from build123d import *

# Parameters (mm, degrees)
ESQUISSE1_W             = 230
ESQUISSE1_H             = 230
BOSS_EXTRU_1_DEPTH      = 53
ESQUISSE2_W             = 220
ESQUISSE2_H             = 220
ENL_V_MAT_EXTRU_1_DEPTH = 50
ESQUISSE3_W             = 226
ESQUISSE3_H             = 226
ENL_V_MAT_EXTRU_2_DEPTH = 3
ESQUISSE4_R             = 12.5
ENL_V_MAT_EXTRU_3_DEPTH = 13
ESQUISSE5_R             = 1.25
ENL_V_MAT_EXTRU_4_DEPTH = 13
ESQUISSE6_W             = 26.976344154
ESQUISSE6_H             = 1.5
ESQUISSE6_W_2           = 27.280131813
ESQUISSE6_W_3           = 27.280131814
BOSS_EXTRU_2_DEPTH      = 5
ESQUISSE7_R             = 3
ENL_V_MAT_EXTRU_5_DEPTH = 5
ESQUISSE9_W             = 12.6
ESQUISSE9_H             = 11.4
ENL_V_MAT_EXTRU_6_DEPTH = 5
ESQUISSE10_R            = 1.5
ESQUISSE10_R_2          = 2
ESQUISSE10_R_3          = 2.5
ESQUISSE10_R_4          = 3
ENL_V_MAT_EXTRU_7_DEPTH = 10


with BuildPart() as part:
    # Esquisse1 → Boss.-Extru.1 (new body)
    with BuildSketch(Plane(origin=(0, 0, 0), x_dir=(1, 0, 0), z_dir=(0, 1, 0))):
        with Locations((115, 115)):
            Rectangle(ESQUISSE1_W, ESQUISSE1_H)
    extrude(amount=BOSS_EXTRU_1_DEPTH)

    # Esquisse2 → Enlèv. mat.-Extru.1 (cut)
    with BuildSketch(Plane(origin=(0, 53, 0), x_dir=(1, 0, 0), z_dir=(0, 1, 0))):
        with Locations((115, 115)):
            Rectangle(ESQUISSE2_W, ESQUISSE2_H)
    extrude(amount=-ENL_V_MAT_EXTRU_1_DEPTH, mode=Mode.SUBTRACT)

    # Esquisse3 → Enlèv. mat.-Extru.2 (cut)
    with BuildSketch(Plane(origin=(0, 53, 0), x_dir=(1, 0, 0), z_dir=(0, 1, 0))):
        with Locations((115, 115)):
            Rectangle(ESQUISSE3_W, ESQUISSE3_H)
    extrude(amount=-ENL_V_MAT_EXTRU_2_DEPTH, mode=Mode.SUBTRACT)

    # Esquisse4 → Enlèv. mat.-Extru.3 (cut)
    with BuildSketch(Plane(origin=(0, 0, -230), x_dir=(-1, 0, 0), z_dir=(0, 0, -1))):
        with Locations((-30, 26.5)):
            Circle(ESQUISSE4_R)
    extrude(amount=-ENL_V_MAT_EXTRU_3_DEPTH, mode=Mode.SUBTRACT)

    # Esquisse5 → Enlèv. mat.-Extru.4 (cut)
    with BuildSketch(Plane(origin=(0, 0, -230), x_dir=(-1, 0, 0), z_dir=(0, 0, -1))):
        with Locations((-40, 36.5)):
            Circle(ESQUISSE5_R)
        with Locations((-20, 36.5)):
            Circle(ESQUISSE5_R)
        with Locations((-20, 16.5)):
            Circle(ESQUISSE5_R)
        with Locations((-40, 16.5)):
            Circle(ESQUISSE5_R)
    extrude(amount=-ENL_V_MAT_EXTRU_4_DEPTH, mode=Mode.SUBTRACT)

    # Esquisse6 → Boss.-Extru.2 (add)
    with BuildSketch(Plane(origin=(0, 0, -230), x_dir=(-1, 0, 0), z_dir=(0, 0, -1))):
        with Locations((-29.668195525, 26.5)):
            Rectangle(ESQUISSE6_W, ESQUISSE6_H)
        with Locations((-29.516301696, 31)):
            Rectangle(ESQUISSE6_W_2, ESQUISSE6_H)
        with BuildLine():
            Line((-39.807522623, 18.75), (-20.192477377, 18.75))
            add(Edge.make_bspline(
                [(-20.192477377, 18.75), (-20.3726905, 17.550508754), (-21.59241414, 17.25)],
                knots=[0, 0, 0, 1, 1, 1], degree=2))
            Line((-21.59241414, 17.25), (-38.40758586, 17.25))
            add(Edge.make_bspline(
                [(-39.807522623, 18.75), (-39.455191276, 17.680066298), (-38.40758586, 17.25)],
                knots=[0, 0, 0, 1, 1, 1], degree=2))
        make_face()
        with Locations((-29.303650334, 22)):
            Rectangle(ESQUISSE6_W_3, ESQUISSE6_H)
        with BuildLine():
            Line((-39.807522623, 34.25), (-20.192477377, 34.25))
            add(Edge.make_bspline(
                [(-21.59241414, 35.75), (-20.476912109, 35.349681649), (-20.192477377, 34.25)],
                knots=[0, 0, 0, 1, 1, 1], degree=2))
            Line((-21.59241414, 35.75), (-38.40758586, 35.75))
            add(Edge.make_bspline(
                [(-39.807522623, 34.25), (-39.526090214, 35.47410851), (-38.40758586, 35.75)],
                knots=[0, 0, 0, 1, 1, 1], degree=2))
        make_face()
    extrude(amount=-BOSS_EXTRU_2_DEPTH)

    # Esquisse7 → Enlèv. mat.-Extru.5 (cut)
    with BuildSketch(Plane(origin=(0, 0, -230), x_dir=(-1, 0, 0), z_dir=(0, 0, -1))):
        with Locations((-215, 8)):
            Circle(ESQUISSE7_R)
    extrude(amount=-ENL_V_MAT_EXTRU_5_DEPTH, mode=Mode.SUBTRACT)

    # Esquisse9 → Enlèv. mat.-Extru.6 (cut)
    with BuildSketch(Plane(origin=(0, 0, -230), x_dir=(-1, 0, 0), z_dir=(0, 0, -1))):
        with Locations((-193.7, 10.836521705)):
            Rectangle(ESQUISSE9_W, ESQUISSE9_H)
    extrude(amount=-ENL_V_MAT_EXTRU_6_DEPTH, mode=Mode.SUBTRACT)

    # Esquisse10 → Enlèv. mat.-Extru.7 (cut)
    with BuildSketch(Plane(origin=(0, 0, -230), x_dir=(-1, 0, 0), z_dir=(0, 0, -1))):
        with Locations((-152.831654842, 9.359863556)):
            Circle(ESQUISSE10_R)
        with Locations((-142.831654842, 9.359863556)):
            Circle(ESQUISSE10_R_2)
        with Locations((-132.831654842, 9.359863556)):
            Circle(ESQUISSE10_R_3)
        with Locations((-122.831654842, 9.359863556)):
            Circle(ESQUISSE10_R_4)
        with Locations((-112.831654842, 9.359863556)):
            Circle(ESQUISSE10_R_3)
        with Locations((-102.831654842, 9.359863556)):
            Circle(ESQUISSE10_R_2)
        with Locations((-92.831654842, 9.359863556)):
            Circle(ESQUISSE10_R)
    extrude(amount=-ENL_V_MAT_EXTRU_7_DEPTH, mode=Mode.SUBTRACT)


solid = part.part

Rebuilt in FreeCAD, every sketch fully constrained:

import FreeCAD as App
import Part
import Sketcher
from FreeCAD import Vector

doc = App.newDocument("Part")
body = doc.addObject("PartDesign::Body", "Body")

# Sketch on XZ plane
sketch1 = body.newObject("Sketcher::SketchObject", "Sketch")
sketch1.AttachmentSupport = (doc.getObject("XZ_Plane"), [""])
sketch1.MapMode = "FlatFace"
sketch1.addGeometry(Part.LineSegment(Vector(0, -230, 0), Vector(0, 0, 0)), False)
sketch1.addGeometry(Part.LineSegment(Vector(0, 0, 0), Vector(230, 0, 0)), False)
sketch1.addGeometry(Part.LineSegment(Vector(230, 0, 0), Vector(230, -230, 0)), False)
sketch1.addGeometry(Part.LineSegment(Vector(230, -230, 0), Vector(0, -230, 0)), False)
sketch1.addConstraint(Sketcher.Constraint("Coincident", 0, 2, 1, 1))
sketch1.addConstraint(Sketcher.Constraint("Coincident", 1, 2, 2, 1))
sketch1.addConstraint(Sketcher.Constraint("Coincident", 2, 2, 3, 1))
sketch1.addConstraint(Sketcher.Constraint("Coincident", 3, 2, 0, 1))
sketch1.addConstraint(Sketcher.Constraint("Vertical", 0))
sketch1.addConstraint(Sketcher.Constraint("Horizontal", 1))
sketch1.addConstraint(Sketcher.Constraint("Vertical", 2))
sketch1.addConstraint(Sketcher.Constraint("Horizontal", 3))
sketch1.addConstraint(Sketcher.Constraint("Coincident", 0, 2, -1, 1))
sketch1.addConstraint(Sketcher.Constraint("Equal", 3, 0))
sketch1.addConstraint(Sketcher.Constraint("DistanceX", 1, 1, 1, 2, 230.0))
pad1 = body.newObject("PartDesign::Pad", "Pad")
pad1.Profile = sketch1
pad1.Length = 53
pad1.Reversed = True

# Sketch on XZ plane
sketch2 = body.newObject("Sketcher::SketchObject", "Sketch001")
sketch2.AttachmentSupport = (doc.getObject("XZ_Plane"), [""])
sketch2.MapMode = "FlatFace"
sketch2.AttachmentOffset = App.Placement(Vector(0, 0, -53), App.Rotation())
sketch2.addGeometry(Part.LineSegment(Vector(5, -225, 0), Vector(5, -5, 0)), False)
sketch2.addGeometry(Part.LineSegment(Vector(5, -5, 0), Vector(225, -5, 0)), False)
sketch2.addGeometry(Part.LineSegment(Vector(225, -5, 0), Vector(225, -225, 0)), False)
sketch2.addGeometry(Part.LineSegment(Vector(225, -225, 0), Vector(5, -225, 0)), False)
sketch2.addConstraint(Sketcher.Constraint("Coincident", 0, 2, 1, 1))
sketch2.addConstraint(Sketcher.Constraint("Coincident", 1, 2, 2, 1))
sketch2.addConstraint(Sketcher.Constraint("Coincident", 2, 2, 3, 1))
sketch2.addConstraint(Sketcher.Constraint("Coincident", 3, 2, 0, 1))
sketch2.addConstraint(Sketcher.Constraint("Vertical", 0))
sketch2.addConstraint(Sketcher.Constraint("Horizontal", 1))
sketch2.addConstraint(Sketcher.Constraint("Vertical", 2))
sketch2.addConstraint(Sketcher.Constraint("Horizontal", 3))
sketch2.addConstraint(Sketcher.Constraint("Equal", 3, 0))
sketch2.addConstraint(Sketcher.Constraint("DistanceX", 1, 1, 1, 2, 220.0))
sketch2.addConstraint(Sketcher.Constraint("DistanceX", -1, 1, 0, 2, 5.0))
sketch2.addConstraint(Sketcher.Constraint("DistanceY", 0, 2, -1, 1, 5.0))
pocket1 = body.newObject("PartDesign::Pocket", "Pocket")
pocket1.Profile = sketch2
pocket1.Length = 50
pocket1.Reversed = True

# Sketch on XZ plane
sketch3 = body.newObject("Sketcher::SketchObject", "Sketch002")
sketch3.AttachmentSupport = (doc.getObject("XZ_Plane"), [""])
sketch3.MapMode = "FlatFace"
sketch3.AttachmentOffset = App.Placement(Vector(0, 0, -53), App.Rotation())
sketch3.addGeometry(Part.LineSegment(Vector(2, -228, 0), Vector(2, -2, 0)), False)
sketch3.addGeometry(Part.LineSegment(Vector(2, -2, 0), Vector(228, -2, 0)), False)
sketch3.addGeometry(Part.LineSegment(Vector(228, -2, 0), Vector(228, -228, 0)), False)
sketch3.addGeometry(Part.LineSegment(Vector(228, -228, 0), Vector(2, -228, 0)), False)
sketch3.addConstraint(Sketcher.Constraint("Coincident", 0, 2, 1, 1))
sketch3.addConstraint(Sketcher.Constraint("Coincident", 1, 2, 2, 1))
sketch3.addConstraint(Sketcher.Constraint("Coincident", 2, 2, 3, 1))
sketch3.addConstraint(Sketcher.Constraint("Coincident", 3, 2, 0, 1))
sketch3.addConstraint(Sketcher.Constraint("Vertical", 0))
sketch3.addConstraint(Sketcher.Constraint("Horizontal", 1))
sketch3.addConstraint(Sketcher.Constraint("Vertical", 2))
sketch3.addConstraint(Sketcher.Constraint("Horizontal", 3))
sketch3.addConstraint(Sketcher.Constraint("Equal", 3, 0))
sketch3.addConstraint(Sketcher.Constraint("DistanceX", 1, 1, 1, 2, 226.0))
sketch3.addConstraint(Sketcher.Constraint("DistanceX", -1, 1, 0, 2, 2.0))
sketch3.addConstraint(Sketcher.Constraint("DistanceY", 0, 2, -1, 1, 2.0))
pocket2 = body.newObject("PartDesign::Pocket", "Pocket001")
pocket2.Profile = sketch3
pocket2.Length = 3
pocket2.Reversed = True

# Sketch on XY plane
sketch4 = body.newObject("Sketcher::SketchObject", "Sketch003")
sketch4.AttachmentSupport = (doc.getObject("XY_Plane"), [""])
sketch4.MapMode = "FlatFace"
sketch4.AttachmentOffset = App.Placement(Vector(0, 0, -230), App.Rotation())
sketch4.addGeometry(Part.Circle(Vector(30, 26, 0), Vector(0, 0, 1), 12), False)
sketch4.addConstraint(Sketcher.Constraint("Diameter", 0, 25.0))
sketch4.addConstraint(Sketcher.Constraint("DistanceX", -1, 1, 0, 3, 30.0))
sketch4.addConstraint(Sketcher.Constraint("DistanceY", -1, 1, 0, 3, 26.5))
pocket3 = body.newObject("PartDesign::Pocket", "Pocket002")
pocket3.Profile = sketch4
pocket3.Length = 13
pocket3.Reversed = True

# Sketch on XY plane
sketch5 = body.newObject("Sketcher::SketchObject", "Sketch004")
sketch5.AttachmentSupport = (doc.getObject("XY_Plane"), [""])
sketch5.MapMode = "FlatFace"
sketch5.AttachmentOffset = App.Placement(Vector(0, 0, -230), App.Rotation())
sketch5.addGeometry(Part.Circle(Vector(40, 36.5, 0), Vector(0, 0, 1), 1.2), False)
sketch5.addGeometry(Part.Circle(Vector(20, 36.5, 0), Vector(0, 0, 1), 1.2), False)
sketch5.addGeometry(Part.Circle(Vector(20, 16.5, 0), Vector(0, 0, 1), 1.2), False)
sketch5.addGeometry(Part.Circle(Vector(40, 16.5, 0), Vector(0, 0, 1), 1.2), False)
sketch5.addConstraint(Sketcher.Constraint("Equal", 0, 1))
sketch5.addConstraint(Sketcher.Constraint("Equal", 1, 2))
sketch5.addConstraint(Sketcher.Constraint("Equal", 2, 3))
sketch5.addConstraint(Sketcher.Constraint("Horizontal", 0, 3, 1, 3))
sketch5.addConstraint(Sketcher.Constraint("Horizontal", 2, 3, 3, 3))
sketch5.addConstraint(Sketcher.Constraint("Vertical", 1, 3, 2, 3))
sketch5.addConstraint(Sketcher.Constraint("Vertical", 0, 3, 3, 3))
sketch5.addConstraint(Sketcher.Constraint("Diameter", 0, 2.5))
sketch5.addConstraint(Sketcher.Constraint("DistanceX", -1, 1, 0, 3, 40.0))
sketch5.addConstraint(Sketcher.Constraint("DistanceX", -1, 1, 1, 3, 20.0))
sketch5.addConstraint(Sketcher.Constraint("DistanceY", 2, 3, 1, 3, 20.0))
sketch5.addConstraint(Sketcher.Constraint("DistanceY", -1, 1, 0, 3, 36.5))
pocket4 = body.newObject("PartDesign::Pocket", "Pocket003")
pocket4.Profile = sketch5
pocket4.Length = 13
pocket4.Reversed = True

# Sketch on XY plane
sketch6 = body.newObject("Sketcher::SketchObject", "Sketch005")
sketch6.AttachmentSupport = (doc.getObject("XY_Plane"), [""])
sketch6.MapMode = "FlatFace"
sketch6.AttachmentOffset = App.Placement(Vector(0, 0, -230), App.Rotation())
sketch6.addGeometry(Part.LineSegment(Vector(43.156368, 27.25, 0), Vector(43.156368, 25.75, 0)), False)
sketch6.addGeometry(Part.LineSegment(Vector(43.156368, 25.75, 0), Vector(16.180023, 25.75, 0)), False)
sketch6.addGeometry(Part.LineSegment(Vector(16.180023, 25.75, 0), Vector(16.180023, 27.25, 0)), False)
sketch6.addGeometry(Part.LineSegment(Vector(16.180023, 27.25, 0), Vector(43.156368, 27.25, 0)), False)
sketch6.addGeometry(Part.LineSegment(Vector(43.156368, 31.75, 0), Vector(43.156368, 30.25, 0)), False)
sketch6.addGeometry(Part.LineSegment(Vector(43.156368, 30.25, 0), Vector(15.876236, 30.25, 0)), False)
sketch6.addGeometry(Part.LineSegment(Vector(15.876236, 30.25, 0), Vector(15.876236, 31.75, 0)), False)
sketch6.addGeometry(Part.LineSegment(Vector(15.876236, 31.75, 0), Vector(43.156368, 31.75, 0)), False)
sketch6.addGeometry(Part.LineSegment(Vector(20.192477, 18.75, 0), Vector(39.807523, 18.75, 0)), False)
sketch6.addGeometry(Part.BSplineCurve([Vector(39.807523, 18.75, 0), Vector(39.455191, 17.680066, 0), Vector(38.407586, 17.25, 0)], [3, 3], [0, 1], False, 2, [1, 1, 1], False), False)
sketch6.addGeometry(Part.LineSegment(Vector(38.407586, 17.25, 0), Vector(21.592414, 17.25, 0)), False)
sketch6.addGeometry(Part.BSplineCurve([Vector(20.192477, 18.75, 0), Vector(20.372691, 17.550509, 0), Vector(21.592414, 17.25, 0)], [3, 3], [0, 1], False, 2, [1, 1, 1], False), False)
sketch6.addGeometry(Part.LineSegment(Vector(42.943716, 22.75, 0), Vector(42.943716, 21.25, 0)), False)
sketch6.addGeometry(Part.LineSegment(Vector(42.943716, 21.25, 0), Vector(15.663584, 21.25, 0)), False)
sketch6.addGeometry(Part.LineSegment(Vector(15.663584, 21.25, 0), Vector(15.663584, 22.75, 0)), False)
sketch6.addGeometry(Part.LineSegment(Vector(15.663584, 22.75, 0), Vector(42.943716, 22.75, 0)), False)
sketch6.addGeometry(Part.LineSegment(Vector(39.807523, 34.25, 0), Vector(20.192477, 34.25, 0)), False)
sketch6.addGeometry(Part.BSplineCurve([Vector(21.592414, 35.75, 0), Vector(20.476912, 35.349682, 0), Vector(20.192477, 34.25, 0)], [3, 3], [0, 1], False, 2, [1, 1, 1], False), False)
sketch6.addGeometry(Part.LineSegment(Vector(21.592414, 35.75, 0), Vector(38.407586, 35.75, 0)), False)
sketch6.addGeometry(Part.BSplineCurve([Vector(39.807523, 34.25, 0), Vector(39.52609, 35.474109, 0), Vector(38.407586, 35.75, 0)], [3, 3], [0, 1], False, 2, [1, 1, 1], False), False)
sketch6.addConstraint(Sketcher.Constraint("Block", 9))
sketch6.addConstraint(Sketcher.Constraint("Block", 11))
sketch6.addConstraint(Sketcher.Constraint("Block", 17))
sketch6.addConstraint(Sketcher.Constraint("Block", 19))
sketch6.addConstraint(Sketcher.Constraint("Coincident", 0, 2, 1, 1))
sketch6.addConstraint(Sketcher.Constraint("Coincident", 1, 2, 2, 1))
sketch6.addConstraint(Sketcher.Constraint("Coincident", 2, 2, 3, 1))
sketch6.addConstraint(Sketcher.Constraint("Coincident", 3, 2, 0, 1))
sketch6.addConstraint(Sketcher.Constraint("Coincident", 4, 2, 5, 1))
sketch6.addConstraint(Sketcher.Constraint("Coincident", 5, 2, 6, 1))
sketch6.addConstraint(Sketcher.Constraint("Coincident", 6, 2, 7, 1))
sketch6.addConstraint(Sketcher.Constraint("Coincident", 7, 2, 4, 1))
sketch6.addConstraint(Sketcher.Constraint("Coincident", 8, 2, 9, 1))
sketch6.addConstraint(Sketcher.Constraint("Coincident", 9, 2, 10, 1))
sketch6.addConstraint(Sketcher.Constraint("Coincident", 10, 2, 11, 2))
sketch6.addConstraint(Sketcher.Constraint("Coincident", 11, 1, 8, 1))
sketch6.addConstraint(Sketcher.Constraint("Coincident", 12, 2, 13, 1))
sketch6.addConstraint(Sketcher.Constraint("Coincident", 13, 2, 14, 1))
sketch6.addConstraint(Sketcher.Constraint("Coincident", 14, 2, 15, 1))
sketch6.addConstraint(Sketcher.Constraint("Coincident", 15, 2, 12, 1))
sketch6.addConstraint(Sketcher.Constraint("Coincident", 16, 2, 17, 2))
sketch6.addConstraint(Sketcher.Constraint("Coincident", 17, 1, 18, 1))
sketch6.addConstraint(Sketcher.Constraint("Coincident", 18, 2, 19, 2))
sketch6.addConstraint(Sketcher.Constraint("Coincident", 19, 1, 16, 1))
sketch6.addConstraint(Sketcher.Constraint("Vertical", 0))
sketch6.addConstraint(Sketcher.Constraint("Horizontal", 1))
sketch6.addConstraint(Sketcher.Constraint("Vertical", 2))
sketch6.addConstraint(Sketcher.Constraint("Horizontal", 3))
sketch6.addConstraint(Sketcher.Constraint("Vertical", 4))
sketch6.addConstraint(Sketcher.Constraint("Horizontal", 5))
sketch6.addConstraint(Sketcher.Constraint("Vertical", 6))
sketch6.addConstraint(Sketcher.Constraint("Horizontal", 7))
sketch6.addConstraint(Sketcher.Constraint("Vertical", 12))
sketch6.addConstraint(Sketcher.Constraint("Horizontal", 13))
sketch6.addConstraint(Sketcher.Constraint("Vertical", 14))
sketch6.addConstraint(Sketcher.Constraint("Horizontal", 15))
sketch6.addConstraint(Sketcher.Constraint("Vertical", 3, 2, 4, 2))
sketch6.addConstraint(Sketcher.Constraint("Equal", 7, 13))
sketch6.addConstraint(Sketcher.Constraint("Equal", 2, 4))
sketch6.addConstraint(Sketcher.Constraint("Equal", 6, 12))
sketch6.addConstraint(Sketcher.Constraint("DistanceY", 0, 2, 0, 1, 1.5))
sketch6.addConstraint(Sketcher.Constraint("DistanceY", 3, 2, 4, 2, 3.0))
sketch6.addConstraint(Sketcher.Constraint("DistanceY", 8, 2, 0, 2, 7.0))
sketch6.addConstraint(Sketcher.Constraint("DistanceY", 12, 2, 3, 2, 6.0))
sketch6.addConstraint(Sketcher.Constraint("DistanceX", 5, 2, 5, 1, 27.280132))
sketch6.addConstraint(Sketcher.Constraint("DistanceX", 1, 2, 8, 2, 23.627499))
sketch6.addConstraint(Sketcher.Constraint("DistanceX", 1, 2, 1, 1, 26.976344))
sketch6.addConstraint(Sketcher.Constraint("DistanceX", 12, 2, 0, 2, 0.212651))
pad2 = body.newObject("PartDesign::Pad", "Pad001")
pad2.Profile = sketch6
pad2.Length = 5

# Sketch on XY plane
sketch7 = body.newObject("Sketcher::SketchObject", "Sketch006")
sketch7.AttachmentSupport = (doc.getObject("XY_Plane"), [""])
sketch7.MapMode = "FlatFace"
sketch7.AttachmentOffset = App.Placement(Vector(0, 0, -230), App.Rotation())
sketch7.addGeometry(Part.Circle(Vector(215, 8, 0), Vector(0, 0, 1), 3), False)
sketch7.addConstraint(Sketcher.Constraint("Diameter", 0, 6.0))
sketch7.addConstraint(Sketcher.Constraint("DistanceX", -1, 1, 0, 3, 215.0))
sketch7.addConstraint(Sketcher.Constraint("DistanceY", -1, 1, 0, 3, 8.0))
pocket5 = body.newObject("PartDesign::Pocket", "Pocket004")
pocket5.Profile = sketch7
pocket5.Length = 5
pocket5.Reversed = True

# Sketch on XY plane
sketch8 = body.newObject("Sketcher::SketchObject", "Sketch007")
sketch8.AttachmentSupport = (doc.getObject("XY_Plane"), [""])
sketch8.MapMode = "FlatFace"
sketch8.AttachmentOffset = App.Placement(Vector(0, 0, -230), App.Rotation())
sketch8.addGeometry(Part.LineSegment(Vector(200, 17, 0), Vector(200, 5, 0)), False)
sketch8.addGeometry(Part.LineSegment(Vector(200, 5, 0), Vector(187, 5, 0)), False)
sketch8.addGeometry(Part.LineSegment(Vector(187, 5, 0), Vector(187, 17, 0)), False)
sketch8.addGeometry(Part.LineSegment(Vector(187, 17, 0), Vector(200, 17, 0)), False)
sketch8.addConstraint(Sketcher.Constraint("Coincident", 0, 2, 1, 1))
sketch8.addConstraint(Sketcher.Constraint("Coincident", 1, 2, 2, 1))
sketch8.addConstraint(Sketcher.Constraint("Coincident", 2, 2, 3, 1))
sketch8.addConstraint(Sketcher.Constraint("Coincident", 3, 2, 0, 1))
sketch8.addConstraint(Sketcher.Constraint("Vertical", 0))
sketch8.addConstraint(Sketcher.Constraint("Horizontal", 1))
sketch8.addConstraint(Sketcher.Constraint("Vertical", 2))
sketch8.addConstraint(Sketcher.Constraint("Horizontal", 3))
sketch8.addConstraint(Sketcher.Constraint("DistanceX", 1, 2, 1, 1, 12.6))
sketch8.addConstraint(Sketcher.Constraint("DistanceY", 0, 2, 0, 1, 11.4))
sketch8.addConstraint(Sketcher.Constraint("DistanceX", -1, 1, 0, 2, 200.0))
sketch8.addConstraint(Sketcher.Constraint("DistanceY", -1, 1, 0, 2, 5.136522))
pocket6 = body.newObject("PartDesign::Pocket", "Pocket005")
pocket6.Profile = sketch8
pocket6.Length = 5
pocket6.Reversed = True

# Sketch on XY plane
sketch9 = body.newObject("Sketcher::SketchObject", "Sketch008")
sketch9.AttachmentSupport = (doc.getObject("XY_Plane"), [""])
sketch9.MapMode = "FlatFace"
sketch9.AttachmentOffset = App.Placement(Vector(0, 0, -230), App.Rotation())
sketch9.addGeometry(Part.Circle(Vector(152.8, 9.4, 0), Vector(0, 0, 1), 1.5), False)
sketch9.addGeometry(Part.Circle(Vector(142.8, 9.4, 0), Vector(0, 0, 1), 2), False)
sketch9.addGeometry(Part.Circle(Vector(132.8, 9.4, 0), Vector(0, 0, 1), 2.5), False)
sketch9.addGeometry(Part.Circle(Vector(122.8, 9.4, 0), Vector(0, 0, 1), 3), False)
sketch9.addGeometry(Part.Circle(Vector(112.8, 9.4, 0), Vector(0, 0, 1), 2.5), False)
sketch9.addGeometry(Part.Circle(Vector(102.8, 9.4, 0), Vector(0, 0, 1), 2), False)
sketch9.addGeometry(Part.Circle(Vector(92.8, 9.4, 0), Vector(0, 0, 1), 1.5), False)
sketch9.addConstraint(Sketcher.Constraint("Equal", 2, 4))
sketch9.addConstraint(Sketcher.Constraint("Equal", 1, 5))
sketch9.addConstraint(Sketcher.Constraint("Equal", 0, 6))
sketch9.addConstraint(Sketcher.Constraint("Horizontal", 0, 3, 1, 3))
sketch9.addConstraint(Sketcher.Constraint("Horizontal", 1, 3, 2, 3))
sketch9.addConstraint(Sketcher.Constraint("Horizontal", 2, 3, 3, 3))
sketch9.addConstraint(Sketcher.Constraint("Horizontal", 3, 3, 4, 3))
sketch9.addConstraint(Sketcher.Constraint("Horizontal", 4, 3, 5, 3))
sketch9.addConstraint(Sketcher.Constraint("Horizontal", 5, 3, 6, 3))
sketch9.addConstraint(Sketcher.Constraint("Diameter", 0, 3.0))
sketch9.addConstraint(Sketcher.Constraint("Diameter", 1, 4.0))
sketch9.addConstraint(Sketcher.Constraint("Diameter", 2, 5.0))
sketch9.addConstraint(Sketcher.Constraint("Diameter", 3, 6.0))
sketch9.addConstraint(Sketcher.Constraint("DistanceX", 1, 3, 0, 3, 10.0))
sketch9.addConstraint(Sketcher.Constraint("DistanceX", 2, 3, 1, 3, 10.0))
sketch9.addConstraint(Sketcher.Constraint("DistanceX", 3, 3, 2, 3, 10.0))
sketch9.addConstraint(Sketcher.Constraint("DistanceX", 4, 3, 3, 3, 10.0))
sketch9.addConstraint(Sketcher.Constraint("DistanceX", 5, 3, 4, 3, 10.0))
sketch9.addConstraint(Sketcher.Constraint("DistanceX", 6, 3, 5, 3, 10.0))
sketch9.addConstraint(Sketcher.Constraint("DistanceX", -1, 1, 0, 3, 152.831655))
sketch9.addConstraint(Sketcher.Constraint("DistanceY", -1, 1, 0, 3, 9.359864))
pocket7 = body.newObject("PartDesign::Pocket", "Pocket006")
pocket7.Profile = sketch9
pocket7.Length = 10
pocket7.Reversed = True

doc.recompute()
